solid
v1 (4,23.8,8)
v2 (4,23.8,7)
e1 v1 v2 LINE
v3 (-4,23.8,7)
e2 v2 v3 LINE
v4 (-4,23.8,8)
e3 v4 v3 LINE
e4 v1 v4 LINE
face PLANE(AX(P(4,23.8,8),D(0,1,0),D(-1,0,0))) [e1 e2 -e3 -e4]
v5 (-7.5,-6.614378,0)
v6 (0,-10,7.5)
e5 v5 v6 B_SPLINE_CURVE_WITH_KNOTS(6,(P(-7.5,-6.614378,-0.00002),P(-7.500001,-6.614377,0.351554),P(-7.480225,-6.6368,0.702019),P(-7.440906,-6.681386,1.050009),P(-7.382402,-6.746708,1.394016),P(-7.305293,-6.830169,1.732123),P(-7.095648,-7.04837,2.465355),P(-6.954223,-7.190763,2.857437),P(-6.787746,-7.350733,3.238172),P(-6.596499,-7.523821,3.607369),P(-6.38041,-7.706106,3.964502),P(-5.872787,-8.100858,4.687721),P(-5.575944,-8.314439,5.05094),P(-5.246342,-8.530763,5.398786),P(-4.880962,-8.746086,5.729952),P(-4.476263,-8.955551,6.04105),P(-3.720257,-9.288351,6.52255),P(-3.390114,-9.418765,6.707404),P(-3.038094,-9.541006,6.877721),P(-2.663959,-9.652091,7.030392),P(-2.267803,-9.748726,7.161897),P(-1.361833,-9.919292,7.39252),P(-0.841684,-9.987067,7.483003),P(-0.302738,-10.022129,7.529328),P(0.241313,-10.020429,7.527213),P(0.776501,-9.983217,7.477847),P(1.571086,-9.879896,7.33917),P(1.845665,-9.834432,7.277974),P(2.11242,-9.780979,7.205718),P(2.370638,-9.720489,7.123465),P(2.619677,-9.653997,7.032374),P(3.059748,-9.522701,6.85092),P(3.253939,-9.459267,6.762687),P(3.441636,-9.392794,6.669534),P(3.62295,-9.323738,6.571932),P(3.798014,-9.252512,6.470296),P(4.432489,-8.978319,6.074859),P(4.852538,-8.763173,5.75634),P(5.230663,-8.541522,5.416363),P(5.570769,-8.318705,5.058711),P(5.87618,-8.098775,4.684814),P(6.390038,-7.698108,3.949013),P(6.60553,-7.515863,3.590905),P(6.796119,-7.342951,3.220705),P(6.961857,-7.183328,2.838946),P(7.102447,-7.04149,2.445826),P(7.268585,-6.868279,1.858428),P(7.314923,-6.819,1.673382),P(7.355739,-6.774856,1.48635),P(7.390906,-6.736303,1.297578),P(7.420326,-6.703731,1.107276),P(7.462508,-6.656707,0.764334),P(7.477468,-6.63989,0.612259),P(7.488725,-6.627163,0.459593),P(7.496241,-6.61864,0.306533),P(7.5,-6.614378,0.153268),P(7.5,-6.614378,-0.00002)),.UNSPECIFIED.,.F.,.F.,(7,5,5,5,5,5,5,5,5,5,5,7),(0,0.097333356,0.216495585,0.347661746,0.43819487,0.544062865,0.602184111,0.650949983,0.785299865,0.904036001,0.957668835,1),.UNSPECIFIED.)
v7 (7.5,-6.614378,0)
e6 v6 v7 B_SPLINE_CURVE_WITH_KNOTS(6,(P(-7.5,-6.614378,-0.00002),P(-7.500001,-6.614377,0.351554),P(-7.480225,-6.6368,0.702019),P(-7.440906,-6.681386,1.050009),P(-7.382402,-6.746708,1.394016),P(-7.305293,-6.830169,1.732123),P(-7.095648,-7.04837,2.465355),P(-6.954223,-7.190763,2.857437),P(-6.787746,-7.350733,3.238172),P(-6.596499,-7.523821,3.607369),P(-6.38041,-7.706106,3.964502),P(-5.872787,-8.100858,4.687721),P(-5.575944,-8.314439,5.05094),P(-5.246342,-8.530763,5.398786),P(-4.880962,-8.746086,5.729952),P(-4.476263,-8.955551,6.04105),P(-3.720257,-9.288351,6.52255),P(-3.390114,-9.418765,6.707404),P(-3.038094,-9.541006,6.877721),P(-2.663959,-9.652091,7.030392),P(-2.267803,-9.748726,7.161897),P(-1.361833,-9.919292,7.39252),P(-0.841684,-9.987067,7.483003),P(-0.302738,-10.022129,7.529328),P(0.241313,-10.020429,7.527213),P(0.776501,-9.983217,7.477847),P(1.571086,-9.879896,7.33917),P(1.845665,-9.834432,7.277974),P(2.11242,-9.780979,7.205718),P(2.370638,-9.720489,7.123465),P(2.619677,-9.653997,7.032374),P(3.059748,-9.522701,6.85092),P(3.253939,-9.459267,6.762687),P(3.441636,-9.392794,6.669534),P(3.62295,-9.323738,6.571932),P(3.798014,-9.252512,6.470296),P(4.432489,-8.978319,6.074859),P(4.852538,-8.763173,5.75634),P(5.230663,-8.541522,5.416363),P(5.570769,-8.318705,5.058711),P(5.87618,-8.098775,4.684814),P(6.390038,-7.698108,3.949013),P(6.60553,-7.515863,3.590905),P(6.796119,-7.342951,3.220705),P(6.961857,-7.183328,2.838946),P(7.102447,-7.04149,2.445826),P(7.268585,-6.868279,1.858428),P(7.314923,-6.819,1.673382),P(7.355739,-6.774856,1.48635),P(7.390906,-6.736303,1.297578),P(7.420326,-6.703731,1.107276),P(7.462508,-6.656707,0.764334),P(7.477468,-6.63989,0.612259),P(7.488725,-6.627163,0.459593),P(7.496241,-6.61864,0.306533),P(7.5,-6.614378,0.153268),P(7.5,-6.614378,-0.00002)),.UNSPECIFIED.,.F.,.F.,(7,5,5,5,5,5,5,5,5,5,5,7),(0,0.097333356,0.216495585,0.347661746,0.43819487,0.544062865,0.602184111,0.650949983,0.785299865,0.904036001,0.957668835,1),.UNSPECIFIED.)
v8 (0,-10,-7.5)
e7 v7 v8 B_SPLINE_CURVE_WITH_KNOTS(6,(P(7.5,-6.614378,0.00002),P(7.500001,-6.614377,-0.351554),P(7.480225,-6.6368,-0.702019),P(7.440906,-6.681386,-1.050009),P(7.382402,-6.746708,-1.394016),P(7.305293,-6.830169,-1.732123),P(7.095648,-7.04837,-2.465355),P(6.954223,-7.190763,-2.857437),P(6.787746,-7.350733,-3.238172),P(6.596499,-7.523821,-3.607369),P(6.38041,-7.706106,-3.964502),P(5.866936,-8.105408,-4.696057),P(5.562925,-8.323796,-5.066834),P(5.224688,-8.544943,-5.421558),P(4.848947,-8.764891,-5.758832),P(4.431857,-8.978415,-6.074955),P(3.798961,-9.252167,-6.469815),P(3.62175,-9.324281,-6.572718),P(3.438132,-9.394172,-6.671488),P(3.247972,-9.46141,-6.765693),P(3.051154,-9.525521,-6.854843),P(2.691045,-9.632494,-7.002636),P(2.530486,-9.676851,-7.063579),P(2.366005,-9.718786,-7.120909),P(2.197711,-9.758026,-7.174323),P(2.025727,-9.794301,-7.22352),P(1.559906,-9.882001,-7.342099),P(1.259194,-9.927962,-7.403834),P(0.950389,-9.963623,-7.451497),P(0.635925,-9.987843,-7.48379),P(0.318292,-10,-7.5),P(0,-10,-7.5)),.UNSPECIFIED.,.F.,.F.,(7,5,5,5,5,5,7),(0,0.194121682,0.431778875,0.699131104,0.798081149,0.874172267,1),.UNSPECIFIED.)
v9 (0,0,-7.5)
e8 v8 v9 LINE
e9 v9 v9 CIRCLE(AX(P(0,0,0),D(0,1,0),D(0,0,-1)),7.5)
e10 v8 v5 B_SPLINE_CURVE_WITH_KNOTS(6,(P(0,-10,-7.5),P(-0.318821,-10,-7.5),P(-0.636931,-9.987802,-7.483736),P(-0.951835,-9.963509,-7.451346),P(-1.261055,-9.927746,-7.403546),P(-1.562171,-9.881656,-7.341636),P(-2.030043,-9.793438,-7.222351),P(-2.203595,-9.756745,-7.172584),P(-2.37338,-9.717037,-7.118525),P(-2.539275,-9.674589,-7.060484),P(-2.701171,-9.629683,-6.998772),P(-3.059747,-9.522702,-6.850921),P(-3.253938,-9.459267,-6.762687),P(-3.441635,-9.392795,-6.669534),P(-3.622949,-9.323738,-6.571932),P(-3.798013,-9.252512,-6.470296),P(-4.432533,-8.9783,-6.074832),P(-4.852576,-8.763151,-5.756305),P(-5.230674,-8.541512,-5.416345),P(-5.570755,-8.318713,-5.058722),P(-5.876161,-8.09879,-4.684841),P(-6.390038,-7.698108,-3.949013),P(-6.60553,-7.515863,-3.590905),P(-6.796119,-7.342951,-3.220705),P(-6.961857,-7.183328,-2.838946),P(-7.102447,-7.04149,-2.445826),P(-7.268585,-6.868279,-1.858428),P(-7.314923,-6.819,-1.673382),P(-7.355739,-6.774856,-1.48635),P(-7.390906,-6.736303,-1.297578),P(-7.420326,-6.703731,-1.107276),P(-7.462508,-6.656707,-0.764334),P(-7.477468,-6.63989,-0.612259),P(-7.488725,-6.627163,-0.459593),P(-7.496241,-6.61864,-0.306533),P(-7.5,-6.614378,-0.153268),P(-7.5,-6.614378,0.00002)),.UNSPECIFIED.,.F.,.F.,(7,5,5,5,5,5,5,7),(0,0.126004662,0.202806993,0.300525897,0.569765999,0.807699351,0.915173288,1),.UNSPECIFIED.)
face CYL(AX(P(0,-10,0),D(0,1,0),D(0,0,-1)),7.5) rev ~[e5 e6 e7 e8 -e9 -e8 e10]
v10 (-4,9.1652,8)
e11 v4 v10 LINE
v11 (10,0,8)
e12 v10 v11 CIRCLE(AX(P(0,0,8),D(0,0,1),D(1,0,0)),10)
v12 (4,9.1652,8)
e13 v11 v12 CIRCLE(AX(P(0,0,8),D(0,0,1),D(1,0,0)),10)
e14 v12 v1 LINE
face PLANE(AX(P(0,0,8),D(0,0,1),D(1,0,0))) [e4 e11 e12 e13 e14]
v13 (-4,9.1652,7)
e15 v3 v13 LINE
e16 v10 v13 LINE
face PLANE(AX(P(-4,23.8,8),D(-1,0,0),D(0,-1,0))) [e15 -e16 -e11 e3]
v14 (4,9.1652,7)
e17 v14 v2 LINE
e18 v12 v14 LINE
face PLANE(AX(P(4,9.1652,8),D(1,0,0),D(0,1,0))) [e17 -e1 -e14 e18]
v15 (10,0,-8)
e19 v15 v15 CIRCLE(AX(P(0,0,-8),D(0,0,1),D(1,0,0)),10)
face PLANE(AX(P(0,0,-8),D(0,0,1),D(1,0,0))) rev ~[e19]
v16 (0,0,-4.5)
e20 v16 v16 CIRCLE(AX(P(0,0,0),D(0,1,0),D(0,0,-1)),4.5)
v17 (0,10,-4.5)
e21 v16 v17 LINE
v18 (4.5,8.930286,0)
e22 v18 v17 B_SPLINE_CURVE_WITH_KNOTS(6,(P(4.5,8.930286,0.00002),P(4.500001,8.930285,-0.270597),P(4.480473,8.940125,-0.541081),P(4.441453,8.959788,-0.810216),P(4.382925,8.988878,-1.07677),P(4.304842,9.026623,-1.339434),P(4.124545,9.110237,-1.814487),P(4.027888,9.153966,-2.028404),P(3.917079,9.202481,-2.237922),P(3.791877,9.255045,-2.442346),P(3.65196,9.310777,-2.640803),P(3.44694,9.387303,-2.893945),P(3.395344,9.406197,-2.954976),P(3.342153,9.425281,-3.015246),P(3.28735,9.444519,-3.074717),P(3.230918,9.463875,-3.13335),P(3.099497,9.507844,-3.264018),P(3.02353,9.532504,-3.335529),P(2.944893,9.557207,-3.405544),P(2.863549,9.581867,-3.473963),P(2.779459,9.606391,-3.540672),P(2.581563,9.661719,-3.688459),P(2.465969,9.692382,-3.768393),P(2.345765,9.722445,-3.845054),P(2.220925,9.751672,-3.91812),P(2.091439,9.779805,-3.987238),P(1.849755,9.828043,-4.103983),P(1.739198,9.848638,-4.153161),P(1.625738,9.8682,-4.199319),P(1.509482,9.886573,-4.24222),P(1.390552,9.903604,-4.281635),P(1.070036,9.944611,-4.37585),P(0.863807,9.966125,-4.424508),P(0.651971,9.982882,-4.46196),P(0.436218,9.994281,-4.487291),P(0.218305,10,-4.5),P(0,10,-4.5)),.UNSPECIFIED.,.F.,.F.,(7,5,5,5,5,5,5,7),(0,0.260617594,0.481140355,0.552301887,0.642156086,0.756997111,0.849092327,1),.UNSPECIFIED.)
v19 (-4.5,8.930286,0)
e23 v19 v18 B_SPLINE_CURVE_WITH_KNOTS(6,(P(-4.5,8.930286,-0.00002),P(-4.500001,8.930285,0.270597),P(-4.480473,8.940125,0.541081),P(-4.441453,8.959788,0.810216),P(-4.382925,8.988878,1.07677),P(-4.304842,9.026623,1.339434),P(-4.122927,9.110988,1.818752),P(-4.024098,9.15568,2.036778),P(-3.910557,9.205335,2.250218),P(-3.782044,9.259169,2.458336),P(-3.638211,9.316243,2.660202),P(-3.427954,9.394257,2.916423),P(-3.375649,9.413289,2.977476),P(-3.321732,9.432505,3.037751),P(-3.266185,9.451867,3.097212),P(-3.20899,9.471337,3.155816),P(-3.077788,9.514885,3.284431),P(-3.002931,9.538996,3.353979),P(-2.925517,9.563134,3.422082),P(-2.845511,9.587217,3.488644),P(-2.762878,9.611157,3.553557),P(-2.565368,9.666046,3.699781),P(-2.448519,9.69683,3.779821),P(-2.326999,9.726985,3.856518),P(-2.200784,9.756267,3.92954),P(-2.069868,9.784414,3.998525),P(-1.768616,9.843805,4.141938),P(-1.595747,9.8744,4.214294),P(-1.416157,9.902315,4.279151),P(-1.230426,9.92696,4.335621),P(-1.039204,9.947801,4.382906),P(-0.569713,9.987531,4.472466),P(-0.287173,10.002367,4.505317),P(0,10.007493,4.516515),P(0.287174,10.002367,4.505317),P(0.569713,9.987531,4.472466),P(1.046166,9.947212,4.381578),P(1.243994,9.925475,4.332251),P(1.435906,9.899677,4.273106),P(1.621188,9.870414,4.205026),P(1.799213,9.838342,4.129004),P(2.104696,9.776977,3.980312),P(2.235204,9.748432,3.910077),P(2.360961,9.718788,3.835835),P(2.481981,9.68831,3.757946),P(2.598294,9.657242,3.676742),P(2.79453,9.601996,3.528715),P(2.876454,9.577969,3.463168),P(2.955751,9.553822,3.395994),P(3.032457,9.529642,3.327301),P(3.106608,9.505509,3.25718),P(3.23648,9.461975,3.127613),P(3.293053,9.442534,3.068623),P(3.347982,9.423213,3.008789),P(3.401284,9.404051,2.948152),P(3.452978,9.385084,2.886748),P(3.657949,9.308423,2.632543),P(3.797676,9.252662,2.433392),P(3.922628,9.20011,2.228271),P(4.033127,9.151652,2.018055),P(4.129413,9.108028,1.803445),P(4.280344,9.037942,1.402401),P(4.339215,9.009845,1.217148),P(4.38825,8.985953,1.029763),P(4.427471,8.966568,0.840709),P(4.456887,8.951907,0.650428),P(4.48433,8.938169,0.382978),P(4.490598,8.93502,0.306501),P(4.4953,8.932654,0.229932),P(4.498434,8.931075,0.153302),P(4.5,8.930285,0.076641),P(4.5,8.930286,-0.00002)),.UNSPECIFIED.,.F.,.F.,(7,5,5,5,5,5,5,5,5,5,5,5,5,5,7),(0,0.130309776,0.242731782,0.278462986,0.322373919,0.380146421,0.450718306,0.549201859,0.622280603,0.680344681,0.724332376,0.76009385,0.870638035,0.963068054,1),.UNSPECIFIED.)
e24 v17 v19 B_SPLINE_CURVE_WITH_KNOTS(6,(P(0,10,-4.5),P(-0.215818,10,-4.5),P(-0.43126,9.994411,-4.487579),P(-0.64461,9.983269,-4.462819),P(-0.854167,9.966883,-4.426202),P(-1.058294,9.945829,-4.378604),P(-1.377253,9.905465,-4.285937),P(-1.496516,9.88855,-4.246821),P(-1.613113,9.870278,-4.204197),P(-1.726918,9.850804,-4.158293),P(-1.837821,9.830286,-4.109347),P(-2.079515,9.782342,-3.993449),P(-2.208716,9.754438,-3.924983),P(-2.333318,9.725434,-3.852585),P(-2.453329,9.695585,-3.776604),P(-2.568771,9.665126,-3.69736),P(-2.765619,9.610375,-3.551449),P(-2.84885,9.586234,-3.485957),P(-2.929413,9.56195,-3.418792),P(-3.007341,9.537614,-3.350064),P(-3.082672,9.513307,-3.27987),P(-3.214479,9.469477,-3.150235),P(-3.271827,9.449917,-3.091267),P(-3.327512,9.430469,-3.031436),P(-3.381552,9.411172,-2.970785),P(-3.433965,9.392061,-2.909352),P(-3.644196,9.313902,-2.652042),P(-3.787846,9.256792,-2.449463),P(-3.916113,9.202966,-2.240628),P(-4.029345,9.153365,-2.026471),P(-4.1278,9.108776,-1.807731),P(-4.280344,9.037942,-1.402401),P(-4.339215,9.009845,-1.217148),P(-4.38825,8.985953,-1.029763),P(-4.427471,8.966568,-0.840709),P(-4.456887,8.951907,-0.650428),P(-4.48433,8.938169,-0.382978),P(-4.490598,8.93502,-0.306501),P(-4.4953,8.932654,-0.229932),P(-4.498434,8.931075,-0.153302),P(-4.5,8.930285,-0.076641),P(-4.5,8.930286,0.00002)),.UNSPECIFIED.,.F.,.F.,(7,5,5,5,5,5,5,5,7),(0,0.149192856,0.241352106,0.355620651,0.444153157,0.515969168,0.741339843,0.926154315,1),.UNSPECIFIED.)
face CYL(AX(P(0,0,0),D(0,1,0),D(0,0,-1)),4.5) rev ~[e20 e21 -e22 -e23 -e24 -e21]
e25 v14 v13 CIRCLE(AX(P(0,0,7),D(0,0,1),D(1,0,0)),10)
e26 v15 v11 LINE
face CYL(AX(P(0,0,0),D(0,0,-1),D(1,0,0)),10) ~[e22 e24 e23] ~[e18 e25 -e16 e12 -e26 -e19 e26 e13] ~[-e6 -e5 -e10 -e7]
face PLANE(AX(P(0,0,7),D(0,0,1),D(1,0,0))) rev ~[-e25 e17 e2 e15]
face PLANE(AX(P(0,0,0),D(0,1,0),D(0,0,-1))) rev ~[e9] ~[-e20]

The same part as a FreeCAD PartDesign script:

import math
import FreeCAD as App
import Part
import Sketcher
from FreeCAD import Vector
Q = App.Units.Quantity

doc = App.newDocument("Part")
params = doc.addObject("Spreadsheet::Sheet", "Params")
for row, (alias, value) in enumerate([
    ("sketch1_diameter", "20 mm"),
    ("pad1_length", "16 mm"),
    ("sketch2_width", "8 mm"),
    ("sketch2_radius", "10 mm"),
    ("pad2_length", "1 mm"),
    ("sketch3_diameter", "9 mm"),
    ("hole_diameter", "9 mm"),
    ("hole_cbore_diameter", "15 mm"),
    ("hole_cbore_depth", "10 mm"),
], start=1):
    params.set(f"A{row}", alias)
    params.set(f"B{row}", "=" + value)
    params.setAlias(f"B{row}", alias)

body = doc.addObject("PartDesign::Body", "Body")

# Sketch on XY plane
sketch1 = doc.addObject("Sketcher::SketchObject", "Sketch")
body.addObject(sketch1)
sketch1.AttachmentSupport = (doc.XY_Plane, [""])
sketch1.MapMode = "FlatFace"
sketch1.addGeometry(Part.Circle(Vector(0, 0, 0), Vector(0, 0, 1), 10), False)
sketch1.addConstraint(Sketcher.Constraint("Coincident", 0, 3, -1, 1))
sketch1.addConstraint(Sketcher.Constraint("Diameter", 0, Q("20 mm")))
sketch1.setExpression("Constraints[1]", "Params.sketch1_diameter")
pad1 = doc.addObject("PartDesign::Pad", "Pad")
body.addObject(pad1)
pad1.Profile = sketch1
pad1.setExpression("Length", "Params.pad1_length")
pad1.Midplane = True

# Sketch on XY plane
sketch2 = doc.addObject("Sketcher::SketchObject", "Sketch001")
body.addObject(sketch2)
sketch2.AttachmentSupport = (doc.XY_Plane, [""])
sketch2.MapMode = "FlatFace"
sketch2.AttachmentOffset = App.Placement(Vector(0, 0, 8), App.Rotation())
sketch2.addGeometry(Part.ArcOfCircle(Part.Circle(Vector(0, 0, 0), Vector(0, 0, 1), 10), math.radians(66.421933), math.radians(113.578067)), False)
sketch2.addGeometry(Part.LineSegment(Vector(4, 9.1652, 0), Vector(4, 23.8, 0)), False)
sketch2.addGeometry(Part.LineSegment(Vector(4, 23.8, 0), Vector(-4, 23.8, 0)), False)
sketch2.addGeometry(Part.LineSegment(Vector(-4, 23.8, 0), Vector(-4, 9.1652, 0)), False)
sketch2.addConstraint(Sketcher.Constraint("Coincident", 0, 1, 1, 1))
sketch2.addConstraint(Sketcher.Constraint("Coincident", 1, 2, 2, 1))
sketch2.addConstraint(Sketcher.Constraint("Coincident", 2, 2, 3, 1))
sketch2.addConstraint(Sketcher.Constraint("Coincident", 3, 2, 0, 2))
sketch2.addConstraint(Sketcher.Constraint("Vertical", 1))
sketch2.addConstraint(Sketcher.Constraint("Horizontal", 2))
sketch2.addConstraint(Sketcher.Constraint("Vertical", 3))
sketch2.addConstraint(Sketcher.Constraint("Coincident", 0, 3, -1, 1))
sketch2.addConstraint(Sketcher.Constraint("Horizontal", 0, 1, 3, 2))
sketch2.addConstraint(Sketcher.Constraint("DistanceX", 2, 2, 2, 1, Q("8 mm")))
sketch2.addConstraint(Sketcher.Constraint("Radius", 0, Q("10 mm")))
sketch2.addConstraint(Sketcher.Constraint("DistanceY", -1, 1, 1, 2, Q("23.8 mm")))
sketch2.setExpression("Constraints[9]", "Params.sketch2_width")
sketch2.setExpression("Constraints[10]", "Params.sketch2_radius")
pad2 = doc.addObject("PartDesign::Pad", "Pad001")
body.addObject(pad2)
pad2.Profile = sketch2
pad2.setExpression("Length", "Params.pad2_length")
pad2.Reversed = True

# Sketch on XZ plane
sketch3 = doc.addObject("Sketcher::SketchObject", "Sketch002")
body.addObject(sketch3)
sketch3.AttachmentSupport = (doc.XZ_Plane, [""])
sketch3.MapMode = "FlatFace"
sketch3.AttachmentOffset = App.Placement(Vector(0, 0, 10), App.Rotation())
sketch3.addGeometry(Part.Circle(Vector(0, 0, 0), Vector(0, 0, 1), 4.5), False)
sketch3.addConstraint(Sketcher.Constraint("Coincident", 0, 3, -1, 1))
sketch3.addConstraint(Sketcher.Constraint("Diameter", 0, Q("9 mm")))
sketch3.setExpression("Constraints[1]", "Params.sketch3_diameter")
doc.recompute()
hole = doc.addObject("PartDesign::Hole", "Hole")
body.addObject(hole)
hole.Profile = sketch3
hole.ThreadType = "None"
hole.setExpression("Diameter", "Params.hole_diameter")
hole.DepthType = "ThroughAll"
hole.HoleCutType = "Counterbore"
hole.setExpression("HoleCutDiameter", "Params.hole_cbore_diameter")
hole.setExpression("HoleCutDepth", "Params.hole_cbore_depth")

doc.recompute()
